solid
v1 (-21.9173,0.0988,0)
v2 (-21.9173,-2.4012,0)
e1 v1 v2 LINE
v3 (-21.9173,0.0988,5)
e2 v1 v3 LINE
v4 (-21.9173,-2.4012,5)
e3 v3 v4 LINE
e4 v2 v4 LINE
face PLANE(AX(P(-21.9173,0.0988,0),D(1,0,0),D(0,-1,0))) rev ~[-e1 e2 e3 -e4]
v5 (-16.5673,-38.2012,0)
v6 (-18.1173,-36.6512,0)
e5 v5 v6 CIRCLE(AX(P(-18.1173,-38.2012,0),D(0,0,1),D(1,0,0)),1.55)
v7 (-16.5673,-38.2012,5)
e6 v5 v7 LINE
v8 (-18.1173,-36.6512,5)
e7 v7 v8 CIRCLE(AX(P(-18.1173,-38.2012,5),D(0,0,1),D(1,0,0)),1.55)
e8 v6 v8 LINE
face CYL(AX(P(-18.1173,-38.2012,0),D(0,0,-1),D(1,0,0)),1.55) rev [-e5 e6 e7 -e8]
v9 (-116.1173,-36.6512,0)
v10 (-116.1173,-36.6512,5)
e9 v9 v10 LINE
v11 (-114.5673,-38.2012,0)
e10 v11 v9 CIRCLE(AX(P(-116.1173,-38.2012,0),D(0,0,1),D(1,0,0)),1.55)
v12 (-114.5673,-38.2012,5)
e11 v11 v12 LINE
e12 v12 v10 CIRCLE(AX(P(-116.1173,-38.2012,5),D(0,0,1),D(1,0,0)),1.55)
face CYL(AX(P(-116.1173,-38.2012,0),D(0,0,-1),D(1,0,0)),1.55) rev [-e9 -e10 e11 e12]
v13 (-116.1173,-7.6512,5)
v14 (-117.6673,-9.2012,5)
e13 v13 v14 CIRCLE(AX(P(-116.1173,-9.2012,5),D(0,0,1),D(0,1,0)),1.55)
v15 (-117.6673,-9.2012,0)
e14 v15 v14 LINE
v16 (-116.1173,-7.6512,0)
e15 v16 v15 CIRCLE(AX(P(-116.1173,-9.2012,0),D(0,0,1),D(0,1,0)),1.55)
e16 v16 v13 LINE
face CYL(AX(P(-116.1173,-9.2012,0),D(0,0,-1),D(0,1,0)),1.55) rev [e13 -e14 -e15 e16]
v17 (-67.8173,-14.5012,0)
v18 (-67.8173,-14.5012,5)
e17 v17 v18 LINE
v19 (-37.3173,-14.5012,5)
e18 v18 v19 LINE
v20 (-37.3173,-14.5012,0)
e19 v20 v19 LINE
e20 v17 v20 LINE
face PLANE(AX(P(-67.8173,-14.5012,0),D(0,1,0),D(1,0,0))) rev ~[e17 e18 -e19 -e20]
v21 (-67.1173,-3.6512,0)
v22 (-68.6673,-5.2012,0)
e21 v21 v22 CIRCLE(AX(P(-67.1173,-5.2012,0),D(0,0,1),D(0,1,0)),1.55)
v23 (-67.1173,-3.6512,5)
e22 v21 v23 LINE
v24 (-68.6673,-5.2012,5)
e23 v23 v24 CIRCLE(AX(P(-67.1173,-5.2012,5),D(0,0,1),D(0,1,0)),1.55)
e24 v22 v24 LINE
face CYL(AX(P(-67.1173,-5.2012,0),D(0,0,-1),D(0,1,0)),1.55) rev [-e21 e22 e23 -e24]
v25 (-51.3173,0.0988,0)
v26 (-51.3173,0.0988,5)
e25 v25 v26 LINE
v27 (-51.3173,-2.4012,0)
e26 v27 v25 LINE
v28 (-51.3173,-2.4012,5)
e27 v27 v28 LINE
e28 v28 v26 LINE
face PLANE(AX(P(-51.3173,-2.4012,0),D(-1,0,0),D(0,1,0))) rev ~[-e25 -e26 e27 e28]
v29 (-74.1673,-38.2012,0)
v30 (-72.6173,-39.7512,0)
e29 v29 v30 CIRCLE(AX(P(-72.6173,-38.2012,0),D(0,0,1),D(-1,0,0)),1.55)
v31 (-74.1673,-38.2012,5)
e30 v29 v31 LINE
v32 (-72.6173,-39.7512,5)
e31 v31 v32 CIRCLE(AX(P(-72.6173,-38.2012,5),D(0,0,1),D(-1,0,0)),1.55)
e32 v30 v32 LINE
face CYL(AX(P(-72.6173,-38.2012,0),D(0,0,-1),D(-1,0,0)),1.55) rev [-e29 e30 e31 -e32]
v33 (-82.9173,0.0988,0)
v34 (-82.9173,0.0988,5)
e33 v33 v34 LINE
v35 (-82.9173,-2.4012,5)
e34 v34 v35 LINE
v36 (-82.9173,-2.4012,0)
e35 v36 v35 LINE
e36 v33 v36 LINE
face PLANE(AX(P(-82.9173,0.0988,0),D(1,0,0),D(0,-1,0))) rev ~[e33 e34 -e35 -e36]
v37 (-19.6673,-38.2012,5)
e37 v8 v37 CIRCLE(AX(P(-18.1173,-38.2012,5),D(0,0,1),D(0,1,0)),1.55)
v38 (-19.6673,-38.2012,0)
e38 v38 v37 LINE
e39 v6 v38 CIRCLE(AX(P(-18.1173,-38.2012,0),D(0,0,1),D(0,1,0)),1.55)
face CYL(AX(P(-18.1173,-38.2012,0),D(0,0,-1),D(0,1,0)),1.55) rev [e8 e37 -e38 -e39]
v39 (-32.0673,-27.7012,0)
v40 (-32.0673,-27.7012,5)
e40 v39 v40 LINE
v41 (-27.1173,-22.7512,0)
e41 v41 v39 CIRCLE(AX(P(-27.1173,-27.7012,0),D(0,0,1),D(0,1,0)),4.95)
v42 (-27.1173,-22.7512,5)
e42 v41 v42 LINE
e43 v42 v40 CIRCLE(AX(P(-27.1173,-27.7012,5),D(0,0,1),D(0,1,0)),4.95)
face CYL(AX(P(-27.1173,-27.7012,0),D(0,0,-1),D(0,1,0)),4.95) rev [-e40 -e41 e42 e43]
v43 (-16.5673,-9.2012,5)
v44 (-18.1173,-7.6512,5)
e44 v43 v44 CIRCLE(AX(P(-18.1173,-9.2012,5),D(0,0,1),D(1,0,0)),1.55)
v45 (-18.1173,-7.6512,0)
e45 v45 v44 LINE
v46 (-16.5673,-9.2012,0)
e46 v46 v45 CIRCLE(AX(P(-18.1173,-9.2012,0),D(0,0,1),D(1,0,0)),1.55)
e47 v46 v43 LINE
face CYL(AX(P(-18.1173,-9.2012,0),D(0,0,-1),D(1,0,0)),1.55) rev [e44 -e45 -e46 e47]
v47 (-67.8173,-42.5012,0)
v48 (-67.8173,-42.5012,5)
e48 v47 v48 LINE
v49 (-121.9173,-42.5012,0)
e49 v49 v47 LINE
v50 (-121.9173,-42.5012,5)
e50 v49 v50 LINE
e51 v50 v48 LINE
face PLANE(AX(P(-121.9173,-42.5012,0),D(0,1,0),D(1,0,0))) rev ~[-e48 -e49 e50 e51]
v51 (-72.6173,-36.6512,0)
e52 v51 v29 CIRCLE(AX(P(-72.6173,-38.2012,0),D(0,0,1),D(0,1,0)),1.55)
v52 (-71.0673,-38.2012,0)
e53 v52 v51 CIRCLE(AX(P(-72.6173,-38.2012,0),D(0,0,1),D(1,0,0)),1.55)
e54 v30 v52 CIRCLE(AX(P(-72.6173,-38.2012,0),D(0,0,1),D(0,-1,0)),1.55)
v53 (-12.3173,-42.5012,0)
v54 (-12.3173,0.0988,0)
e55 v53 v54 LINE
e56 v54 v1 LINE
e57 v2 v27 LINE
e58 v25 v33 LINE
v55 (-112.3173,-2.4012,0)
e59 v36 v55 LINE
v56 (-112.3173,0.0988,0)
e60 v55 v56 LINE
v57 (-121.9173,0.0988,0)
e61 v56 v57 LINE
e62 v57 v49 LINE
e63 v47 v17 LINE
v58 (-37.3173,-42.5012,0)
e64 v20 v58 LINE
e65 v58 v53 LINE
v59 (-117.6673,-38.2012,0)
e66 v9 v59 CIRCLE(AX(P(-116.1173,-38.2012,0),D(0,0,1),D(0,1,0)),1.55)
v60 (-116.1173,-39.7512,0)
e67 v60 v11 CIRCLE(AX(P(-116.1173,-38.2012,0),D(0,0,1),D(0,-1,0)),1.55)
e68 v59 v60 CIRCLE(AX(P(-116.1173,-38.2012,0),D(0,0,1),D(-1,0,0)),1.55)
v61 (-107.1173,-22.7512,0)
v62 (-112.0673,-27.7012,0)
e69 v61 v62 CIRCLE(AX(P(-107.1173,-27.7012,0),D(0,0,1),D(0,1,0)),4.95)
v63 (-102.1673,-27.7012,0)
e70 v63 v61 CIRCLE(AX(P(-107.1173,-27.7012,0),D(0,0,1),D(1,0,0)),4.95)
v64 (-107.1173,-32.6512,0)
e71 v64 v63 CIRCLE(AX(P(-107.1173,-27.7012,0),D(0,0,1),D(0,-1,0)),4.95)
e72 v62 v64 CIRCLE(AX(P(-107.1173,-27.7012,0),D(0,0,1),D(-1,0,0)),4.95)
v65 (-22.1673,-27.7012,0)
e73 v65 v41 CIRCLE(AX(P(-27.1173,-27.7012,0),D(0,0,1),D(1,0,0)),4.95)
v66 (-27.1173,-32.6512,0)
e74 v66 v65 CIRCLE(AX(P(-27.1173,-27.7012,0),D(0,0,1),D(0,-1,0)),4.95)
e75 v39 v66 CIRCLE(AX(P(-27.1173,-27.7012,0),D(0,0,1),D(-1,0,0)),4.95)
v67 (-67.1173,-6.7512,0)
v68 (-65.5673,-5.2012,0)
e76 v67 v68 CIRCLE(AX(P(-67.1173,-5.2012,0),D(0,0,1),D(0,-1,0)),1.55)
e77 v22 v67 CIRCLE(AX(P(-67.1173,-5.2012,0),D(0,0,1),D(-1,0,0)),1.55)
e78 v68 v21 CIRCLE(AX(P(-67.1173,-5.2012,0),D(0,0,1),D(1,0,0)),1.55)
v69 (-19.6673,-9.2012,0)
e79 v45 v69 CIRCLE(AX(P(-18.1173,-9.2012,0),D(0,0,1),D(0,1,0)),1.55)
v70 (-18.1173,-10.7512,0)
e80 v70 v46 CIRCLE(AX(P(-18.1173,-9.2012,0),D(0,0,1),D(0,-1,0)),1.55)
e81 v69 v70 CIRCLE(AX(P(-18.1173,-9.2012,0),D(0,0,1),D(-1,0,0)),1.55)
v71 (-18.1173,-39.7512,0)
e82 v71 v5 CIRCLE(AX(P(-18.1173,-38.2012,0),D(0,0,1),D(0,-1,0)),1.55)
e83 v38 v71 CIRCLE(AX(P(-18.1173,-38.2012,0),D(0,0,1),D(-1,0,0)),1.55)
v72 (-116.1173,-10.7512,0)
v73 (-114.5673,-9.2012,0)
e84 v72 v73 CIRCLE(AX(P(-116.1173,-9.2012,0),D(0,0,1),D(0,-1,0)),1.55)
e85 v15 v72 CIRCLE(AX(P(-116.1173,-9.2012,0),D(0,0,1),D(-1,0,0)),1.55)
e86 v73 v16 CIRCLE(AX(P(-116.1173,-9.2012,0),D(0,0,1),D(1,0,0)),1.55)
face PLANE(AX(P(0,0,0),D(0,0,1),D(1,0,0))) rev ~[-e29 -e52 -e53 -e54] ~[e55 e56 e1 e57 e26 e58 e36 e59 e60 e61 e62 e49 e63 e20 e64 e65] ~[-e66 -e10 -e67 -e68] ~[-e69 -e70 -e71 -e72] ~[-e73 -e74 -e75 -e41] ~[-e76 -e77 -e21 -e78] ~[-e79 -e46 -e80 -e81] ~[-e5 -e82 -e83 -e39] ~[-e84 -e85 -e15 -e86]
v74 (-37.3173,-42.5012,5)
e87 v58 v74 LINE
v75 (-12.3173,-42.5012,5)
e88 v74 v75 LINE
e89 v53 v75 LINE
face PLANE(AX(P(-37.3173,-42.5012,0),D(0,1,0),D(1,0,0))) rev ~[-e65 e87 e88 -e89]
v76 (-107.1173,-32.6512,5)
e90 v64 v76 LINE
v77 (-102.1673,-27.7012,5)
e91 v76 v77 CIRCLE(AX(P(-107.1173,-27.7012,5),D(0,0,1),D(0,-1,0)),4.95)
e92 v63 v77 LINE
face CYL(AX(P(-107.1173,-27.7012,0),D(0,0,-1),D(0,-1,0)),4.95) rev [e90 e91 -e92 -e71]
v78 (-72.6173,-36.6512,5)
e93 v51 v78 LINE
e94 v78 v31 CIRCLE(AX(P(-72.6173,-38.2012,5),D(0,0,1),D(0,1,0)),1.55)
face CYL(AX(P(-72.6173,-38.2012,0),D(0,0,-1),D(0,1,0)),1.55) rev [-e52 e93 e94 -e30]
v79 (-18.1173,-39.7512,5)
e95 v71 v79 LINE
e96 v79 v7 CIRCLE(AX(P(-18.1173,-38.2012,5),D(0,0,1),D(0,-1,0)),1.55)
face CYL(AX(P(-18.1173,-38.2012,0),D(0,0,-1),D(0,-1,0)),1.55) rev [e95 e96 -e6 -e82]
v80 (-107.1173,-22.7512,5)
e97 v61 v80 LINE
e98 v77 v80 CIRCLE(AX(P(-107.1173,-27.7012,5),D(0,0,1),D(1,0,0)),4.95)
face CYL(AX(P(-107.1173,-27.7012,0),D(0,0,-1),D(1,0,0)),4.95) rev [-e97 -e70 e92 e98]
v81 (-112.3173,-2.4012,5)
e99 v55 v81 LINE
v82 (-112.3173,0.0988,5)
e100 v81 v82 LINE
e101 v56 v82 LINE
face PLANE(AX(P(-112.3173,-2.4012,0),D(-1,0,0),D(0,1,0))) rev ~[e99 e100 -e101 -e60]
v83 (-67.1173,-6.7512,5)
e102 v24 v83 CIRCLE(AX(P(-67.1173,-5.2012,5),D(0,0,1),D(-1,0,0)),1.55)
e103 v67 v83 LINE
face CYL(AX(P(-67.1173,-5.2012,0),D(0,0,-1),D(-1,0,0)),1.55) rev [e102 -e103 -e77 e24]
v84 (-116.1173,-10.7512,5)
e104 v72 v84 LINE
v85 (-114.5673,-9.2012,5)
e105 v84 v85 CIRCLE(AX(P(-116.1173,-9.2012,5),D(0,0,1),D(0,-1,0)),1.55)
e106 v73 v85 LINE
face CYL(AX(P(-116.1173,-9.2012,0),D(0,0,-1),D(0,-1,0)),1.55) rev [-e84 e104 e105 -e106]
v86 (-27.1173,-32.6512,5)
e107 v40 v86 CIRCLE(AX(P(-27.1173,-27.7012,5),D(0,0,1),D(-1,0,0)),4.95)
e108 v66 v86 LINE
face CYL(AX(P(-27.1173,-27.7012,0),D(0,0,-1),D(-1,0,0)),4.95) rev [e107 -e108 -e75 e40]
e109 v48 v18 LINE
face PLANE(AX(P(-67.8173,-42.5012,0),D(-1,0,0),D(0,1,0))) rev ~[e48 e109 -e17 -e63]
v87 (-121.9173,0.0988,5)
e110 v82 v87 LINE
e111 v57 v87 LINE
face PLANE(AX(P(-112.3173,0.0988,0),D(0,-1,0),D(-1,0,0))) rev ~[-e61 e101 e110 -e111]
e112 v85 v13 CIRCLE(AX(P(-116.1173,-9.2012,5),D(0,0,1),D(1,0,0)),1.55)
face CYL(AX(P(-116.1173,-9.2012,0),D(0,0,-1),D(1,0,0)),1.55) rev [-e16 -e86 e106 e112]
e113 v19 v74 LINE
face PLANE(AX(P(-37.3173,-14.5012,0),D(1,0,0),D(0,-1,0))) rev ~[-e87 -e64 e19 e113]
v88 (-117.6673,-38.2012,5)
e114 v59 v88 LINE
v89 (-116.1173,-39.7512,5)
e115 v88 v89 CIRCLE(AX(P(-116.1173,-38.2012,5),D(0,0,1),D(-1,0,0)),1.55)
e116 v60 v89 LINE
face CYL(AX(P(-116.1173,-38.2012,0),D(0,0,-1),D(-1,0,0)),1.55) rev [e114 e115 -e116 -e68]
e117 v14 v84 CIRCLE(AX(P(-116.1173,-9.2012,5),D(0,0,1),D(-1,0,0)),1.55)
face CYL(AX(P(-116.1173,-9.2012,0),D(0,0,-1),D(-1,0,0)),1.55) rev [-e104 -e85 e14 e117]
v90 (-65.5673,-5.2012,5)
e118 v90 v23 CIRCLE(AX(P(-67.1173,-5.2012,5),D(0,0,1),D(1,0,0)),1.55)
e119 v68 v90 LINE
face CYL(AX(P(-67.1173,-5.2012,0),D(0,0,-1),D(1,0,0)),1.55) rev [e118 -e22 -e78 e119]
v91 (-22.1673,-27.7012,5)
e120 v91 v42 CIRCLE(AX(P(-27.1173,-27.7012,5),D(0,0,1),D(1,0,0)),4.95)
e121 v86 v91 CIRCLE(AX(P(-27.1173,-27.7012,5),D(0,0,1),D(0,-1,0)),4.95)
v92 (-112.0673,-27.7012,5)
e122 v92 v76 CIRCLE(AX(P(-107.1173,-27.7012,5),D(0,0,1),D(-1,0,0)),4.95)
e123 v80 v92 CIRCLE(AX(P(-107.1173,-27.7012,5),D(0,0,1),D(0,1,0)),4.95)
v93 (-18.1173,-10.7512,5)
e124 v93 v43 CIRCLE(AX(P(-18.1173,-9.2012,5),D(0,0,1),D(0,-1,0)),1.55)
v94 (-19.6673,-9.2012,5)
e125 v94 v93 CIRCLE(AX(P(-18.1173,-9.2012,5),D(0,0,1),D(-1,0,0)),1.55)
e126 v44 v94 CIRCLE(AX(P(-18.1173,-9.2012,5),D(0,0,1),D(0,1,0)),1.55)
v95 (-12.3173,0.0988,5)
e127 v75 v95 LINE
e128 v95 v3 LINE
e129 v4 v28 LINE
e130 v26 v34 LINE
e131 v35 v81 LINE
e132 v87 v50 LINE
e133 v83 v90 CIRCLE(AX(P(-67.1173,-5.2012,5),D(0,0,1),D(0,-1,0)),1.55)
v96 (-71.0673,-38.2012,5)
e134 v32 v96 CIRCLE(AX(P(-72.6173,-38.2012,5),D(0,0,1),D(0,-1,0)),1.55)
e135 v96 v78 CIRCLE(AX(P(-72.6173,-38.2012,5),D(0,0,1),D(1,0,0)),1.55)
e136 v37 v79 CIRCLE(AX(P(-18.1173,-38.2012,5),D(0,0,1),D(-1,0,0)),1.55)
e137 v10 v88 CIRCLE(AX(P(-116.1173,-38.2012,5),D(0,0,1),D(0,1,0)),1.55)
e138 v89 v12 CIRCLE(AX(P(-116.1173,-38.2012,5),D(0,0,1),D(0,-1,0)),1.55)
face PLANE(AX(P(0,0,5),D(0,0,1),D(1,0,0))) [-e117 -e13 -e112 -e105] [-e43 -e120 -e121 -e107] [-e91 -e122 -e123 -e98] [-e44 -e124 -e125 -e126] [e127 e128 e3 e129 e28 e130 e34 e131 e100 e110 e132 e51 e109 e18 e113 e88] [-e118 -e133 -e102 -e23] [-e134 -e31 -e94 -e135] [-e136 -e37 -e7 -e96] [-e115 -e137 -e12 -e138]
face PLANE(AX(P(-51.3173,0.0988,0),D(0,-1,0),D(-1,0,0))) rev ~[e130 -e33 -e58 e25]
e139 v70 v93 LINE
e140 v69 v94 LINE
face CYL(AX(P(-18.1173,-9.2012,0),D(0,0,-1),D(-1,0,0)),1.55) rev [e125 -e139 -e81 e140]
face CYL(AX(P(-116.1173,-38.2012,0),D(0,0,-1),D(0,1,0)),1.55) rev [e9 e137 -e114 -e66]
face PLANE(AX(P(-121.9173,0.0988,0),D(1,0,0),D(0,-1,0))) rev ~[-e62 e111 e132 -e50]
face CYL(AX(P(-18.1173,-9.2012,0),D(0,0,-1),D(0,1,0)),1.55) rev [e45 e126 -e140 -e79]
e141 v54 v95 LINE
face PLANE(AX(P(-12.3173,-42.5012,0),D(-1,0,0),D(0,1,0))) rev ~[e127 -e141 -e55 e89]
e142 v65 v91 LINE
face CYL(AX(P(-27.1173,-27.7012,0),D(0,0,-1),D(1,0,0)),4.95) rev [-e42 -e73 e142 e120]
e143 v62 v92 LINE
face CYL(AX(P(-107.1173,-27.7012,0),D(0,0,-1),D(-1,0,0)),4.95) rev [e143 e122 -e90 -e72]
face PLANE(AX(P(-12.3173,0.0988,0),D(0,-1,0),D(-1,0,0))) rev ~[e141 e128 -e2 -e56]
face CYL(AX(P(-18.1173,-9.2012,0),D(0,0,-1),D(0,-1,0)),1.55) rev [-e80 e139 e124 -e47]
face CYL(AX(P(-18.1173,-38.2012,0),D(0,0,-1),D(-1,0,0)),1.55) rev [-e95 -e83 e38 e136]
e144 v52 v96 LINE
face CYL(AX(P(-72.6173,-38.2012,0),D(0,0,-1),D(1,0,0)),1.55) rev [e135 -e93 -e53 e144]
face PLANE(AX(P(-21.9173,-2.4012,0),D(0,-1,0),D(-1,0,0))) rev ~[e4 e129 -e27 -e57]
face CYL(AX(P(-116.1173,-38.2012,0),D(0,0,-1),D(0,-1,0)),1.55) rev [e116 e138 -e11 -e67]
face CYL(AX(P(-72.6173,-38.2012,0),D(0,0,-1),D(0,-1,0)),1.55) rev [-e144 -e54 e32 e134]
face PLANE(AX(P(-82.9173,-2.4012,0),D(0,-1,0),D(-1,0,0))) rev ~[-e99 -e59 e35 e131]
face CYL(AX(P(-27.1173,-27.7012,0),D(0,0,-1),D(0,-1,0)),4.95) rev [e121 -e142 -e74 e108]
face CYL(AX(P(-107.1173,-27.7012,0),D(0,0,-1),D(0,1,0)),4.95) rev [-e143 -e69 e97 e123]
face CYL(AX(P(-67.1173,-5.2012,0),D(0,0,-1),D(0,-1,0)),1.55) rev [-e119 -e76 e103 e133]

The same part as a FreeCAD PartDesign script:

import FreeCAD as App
import Part
import Sketcher
Q = App.Units.Quantity

doc = App.newDocument("Part")
body = doc.addObject("PartDesign::Body", "Body")

# Sketch on XY plane
sketch1 = body.newObject("Sketcher::SketchObject", "Sketch")
sketch1.AttachmentSupport = (doc.getObject("XY_Plane"), [""])
sketch1.MapMode = "FlatFace"
sketch1.addGeometry(Part.LineSegment(App.Vector(-67.8, -42.5, 0), App.Vector(-67.8, -14.5, 0)), False)
sketch1.addGeometry(Part.LineSegment(App.Vector(-67.8, -14.5, 0), App.Vector(-37.3, -14.5, 0)), False)
sketch1.addGeometry(Part.LineSegment(App.Vector(-37.3, -14.5, 0), App.Vector(-37.3, -42.5, 0)), False)
sketch1.addGeometry(Part.LineSegment(App.Vector(-37.3, -42.5, 0), App.Vector(-12.3, -42.5, 0)), False)
sketch1.addGeometry(Part.LineSegment(App.Vector(-12.3, -42.5, 0), App.Vector(-12.3, 0.1, 0)), False)
sketch1.addGeometry(Part.LineSegment(App.Vector(-12.3, 0.1, 0), App.Vector(-21.9, 0.1, 0)), False)
sketch1.addGeometry(Part.LineSegment(App.Vector(-21.9, 0.1, 0), App.Vector(-21.9, -2.4, 0)), False)
sketch1.addGeometry(Part.LineSegment(App.Vector(-21.9, -2.4, 0), App.Vector(-51.3, -2.4, 0)), False)
sketch1.addGeometry(Part.LineSegment(App.Vector(-51.3, -2.4, 0), App.Vector(-51.3, 0.1, 0)), False)
sketch1.addGeometry(Part.LineSegment(App.Vector(-51.3, 0.1, 0), App.Vector(-82.9, 0.1, 0)), False)
sketch1.addGeometry(Part.LineSegment(App.Vector(-82.9, 0.1, 0), App.Vector(-82.9, -2.4, 0)), False)
sketch1.addGeometry(Part.LineSegment(App.Vector(-82.9, -2.4, 0), App.Vector(-112.3, -2.4, 0)), False)
sketch1.addGeometry(Part.LineSegment(App.Vector(-112.3, -2.4, 0), App.Vector(-112.3, 0.1, 0)), False)
sketch1.addGeometry(Part.LineSegment(App.Vector(-112.3, 0.1, 0), App.Vector(-121.9, 0.1, 0)), False)
sketch1.addGeometry(Part.LineSegment(App.Vector(-121.9, 0.1, 0), App.Vector(-121.9, -42.5, 0)), False)
sketch1.addGeometry(Part.LineSegment(App.Vector(-121.9, -42.5, 0), App.Vector(-67.8, -42.5, 0)), False)
sketch1.addGeometry(Part.Circle(App.Vector(-116.1, -38.2, 0), App.Vector(0, 0, 1), 1.5), False)
sketch1.addGeometry(Part.Circle(App.Vector(-72.6, -38.2, 0), App.Vector(0, 0, 1), 1.5), False)
sketch1.addGeometry(Part.Circle(App.Vector(-107.1, -27.7, 0), App.Vector(0, 0, 1), 4.9), False)
sketch1.addGeometry(Part.Circle(App.Vector(-18.1, -38.2, 0), App.Vector(0, 0, 1), 1.6), False)
sketch1.addGeometry(Part.Circle(App.Vector(-27.1, -27.7, 0), App.Vector(0, 0, 1), 4.9), False)
sketch1.addGeometry(Part.Circle(App.Vector(-116.1, -9.2, 0), App.Vector(0, 0, 1), 1.5), False)
sketch1.addGeometry(Part.Circle(App.Vector(-67.1, -5.2, 0), App.Vector(0, 0, 1), 1.6), False)
sketch1.addGeometry(Part.Circle(App.Vector(-18.1, -9.2, 0), App.Vector(0, 0, 1), 1.5), False)
sketch1.addConstraint(Sketcher.Constraint("Coincident", 0, 2, 1, 1))
sketch1.addConstraint(Sketcher.Constraint("Coincident", 1, 2, 2, 1))
sketch1.addConstraint(Sketcher.Constraint("Coincident", 2, 2, 3, 1))
sketch1.addConstraint(Sketcher.Constraint("Coincident", 3, 2, 4, 1))
sketch1.addConstraint(Sketcher.Constraint("Coincident", 4, 2, 5, 1))
sketch1.addConstraint(Sketcher.Constraint("Coincident", 5, 2, 6, 1))
sketch1.addConstraint(Sketcher.Constraint("Coincident", 6, 2, 7, 1))
sketch1.addConstraint(Sketcher.Constraint("Coincident", 7, 2, 8, 1))
sketch1.addConstraint(Sketcher.Constraint("Coincident", 8, 2, 9, 1))
sketch1.addConstraint(Sketcher.Constraint("Coincident", 9, 2, 10, 1))
sketch1.addConstraint(Sketcher.Constraint("Coincident", 10, 2, 11, 1))
sketch1.addConstraint(Sketcher.Constraint("Coincident", 11, 2, 12, 1))
sketch1.addConstraint(Sketcher.Constraint("Coincident", 12, 2, 13, 1))
sketch1.addConstraint(Sketcher.Constraint("Coincident", 13, 2, 14, 1))
sketch1.addConstraint(Sketcher.Constraint("Coincident", 14, 2, 15, 1))
sketch1.addConstraint(Sketcher.Constraint("Coincident", 15, 2, 0, 1))
sketch1.addConstraint(Sketcher.Constraint("Vertical", 0))
sketch1.addConstraint(Sketcher.Constraint("Horizontal", 1))
sketch1.addConstraint(Sketcher.Constraint("Vertical", 2))
sketch1.addConstraint(Sketcher.Constraint("Horizontal", 3))
sketch1.addConstraint(Sketcher.Constraint("Vertical", 4))
sketch1.addConstraint(Sketcher.Constraint("Horizontal", 5))
sketch1.addConstraint(Sketcher.Constraint("Vertical", 6))
sketch1.addConstraint(Sketcher.Constraint("Horizontal", 7))
sketch1.addConstraint(Sketcher.Constraint("Vertical", 8))
sketch1.addConstraint(Sketcher.Constraint("Horizontal", 9))
sketch1.addConstraint(Sketcher.Constraint("Vertical", 10))
sketch1.addConstraint(Sketcher.Constraint("Horizontal", 11))
sketch1.addConstraint(Sketcher.Constraint("Vertical", 12))
sketch1.addConstraint(Sketcher.Constraint("Horizontal", 13))
sketch1.addConstraint(Sketcher.Constraint("Vertical", 14))
sketch1.addConstraint(Sketcher.Constraint("Horizontal", 15))
sketch1.addConstraint(Sketcher.Constraint("Equal", 16, 17))
sketch1.addConstraint(Sketcher.Constraint("Equal", 17, 19))
sketch1.addConstraint(Sketcher.Constraint("Equal", 18, 20))
sketch1.addConstraint(Sketcher.Constraint("Equal", 19, 21))
sketch1.addConstraint(Sketcher.Constraint("Equal", 21, 22))
sketch1.addConstraint(Sketcher.Constraint("Equal", 22, 23))
sketch1.addConstraint(Sketcher.Constraint("Horizontal", 16, 3, 17, 3))
sketch1.addConstraint(Sketcher.Constraint("Horizontal", 17, 3, 19, 3))
sketch1.addConstraint(Sketcher.Constraint("Horizontal", 18, 3, 20, 3))
sketch1.addConstraint(Sketcher.Constraint("Horizontal", 21, 3, 23, 3))
sketch1.addConstraint(Sketcher.Constraint("Horizontal", 5, 2, 8, 2))
sketch1.addConstraint(Sketcher.Constraint("Horizontal", 7, 2, 10, 2))
sketch1.addConstraint(Sketcher.Constraint("Horizontal", 9, 2, 12, 2))
sketch1.addConstraint(Sketcher.Constraint("Horizontal", 3, 2, 14, 2))
sketch1.addConstraint(Sketcher.Constraint("Vertical", 16, 3, 21, 3))
sketch1.addConstraint(Sketcher.Constraint("Vertical", 19, 3, 23, 3))
sketch1.addConstraint(Sketcher.Constraint("Equal", 7, 11))
sketch1.addConstraint(Sketcher.Constraint("Equal", 5, 13))
sketch1.addConstraint(Sketcher.Constraint("Diameter", 16, Q("3.1 mm")))
sketch1.addConstraint(Sketcher.Constraint("Diameter", 18, Q("9.9 mm")))
sketch1.addConstraint(Sketcher.Constraint("DistanceX", 3, 1, 3, 2, Q("25 mm")))
sketch1.addConstraint(Sketcher.Constraint("DistanceY", 0, 1, 0, 2, Q("28 mm")))
sketch1.addConstraint(Sketcher.Constraint("DistanceX", 1, 1, 1, 2, Q("30.5 mm")))
sketch1.addConstraint(Sketcher.Constraint("DistanceX", 5, 2, 5, 1, Q("9.6 mm")))
sketch1.addConstraint(Sketcher.Constraint("DistanceX", 7, 2, 7, 1, Q("29.4 mm")))
sketch1.addConstraint(Sketcher.Constraint("DistanceX", 9, 2, 9, 1, Q("31.6 mm")))
sketch1.addConstraint(Sketcher.Constraint("DistanceY", 4, 1, 4, 2, Q("42.6 mm")))
sketch1.addConstraint(Sketcher.Constraint("DistanceY", 6, 2, 6, 1, Q("2.5 mm")))
sketch1.addConstraint(Sketcher.Constraint("DistanceX", 16, 3, 18, 3, Q("9 mm")))
sketch1.addConstraint(Sketcher.Constraint("DistanceX", 18, 3, 19, 3, Q("89 mm")))
sketch1.addConstraint(Sketcher.Constraint("DistanceX", 20, 3, 19, 3, Q("9 mm")))
sketch1.addConstraint(Sketcher.Constraint("DistanceY", 16, 3, 21, 3, Q("29 mm")))
sketch1.addConstraint(Sketcher.Constraint("DistanceY", 17, 3, 22, 3, Q("33 mm")))
sketch1.addConstraint(Sketcher.Constraint("DistanceX", 18, 3, 22, 3, Q("40 mm")))
sketch1.addConstraint(Sketcher.Constraint("DistanceX", 16, 3, 17, 3, Q("43.5 mm")))
sketch1.addConstraint(Sketcher.Constraint("DistanceY", 16, 3, 18, 3, Q("10.5 mm")))
sketch1.addConstraint(Sketcher.Constraint("DistanceX", 0, 2, 22, 3, Q("0.7 mm")))
sketch1.addConstraint(Sketcher.Constraint("DistanceY", 0, 2, 22, 3, Q("9.3 mm")))
sketch1.addConstraint(Sketcher.Constraint("DistanceX", 16, 3, -1, 1, Q("116.1173 mm")))
sketch1.addConstraint(Sketcher.Constraint("DistanceY", 16, 3, -1, 1, Q("38.2012 mm")))
pad1 = body.newObject("PartDesign::Pad", "Pad")
pad1.Profile = sketch1
pad1.Length = 5

doc.recompute()
